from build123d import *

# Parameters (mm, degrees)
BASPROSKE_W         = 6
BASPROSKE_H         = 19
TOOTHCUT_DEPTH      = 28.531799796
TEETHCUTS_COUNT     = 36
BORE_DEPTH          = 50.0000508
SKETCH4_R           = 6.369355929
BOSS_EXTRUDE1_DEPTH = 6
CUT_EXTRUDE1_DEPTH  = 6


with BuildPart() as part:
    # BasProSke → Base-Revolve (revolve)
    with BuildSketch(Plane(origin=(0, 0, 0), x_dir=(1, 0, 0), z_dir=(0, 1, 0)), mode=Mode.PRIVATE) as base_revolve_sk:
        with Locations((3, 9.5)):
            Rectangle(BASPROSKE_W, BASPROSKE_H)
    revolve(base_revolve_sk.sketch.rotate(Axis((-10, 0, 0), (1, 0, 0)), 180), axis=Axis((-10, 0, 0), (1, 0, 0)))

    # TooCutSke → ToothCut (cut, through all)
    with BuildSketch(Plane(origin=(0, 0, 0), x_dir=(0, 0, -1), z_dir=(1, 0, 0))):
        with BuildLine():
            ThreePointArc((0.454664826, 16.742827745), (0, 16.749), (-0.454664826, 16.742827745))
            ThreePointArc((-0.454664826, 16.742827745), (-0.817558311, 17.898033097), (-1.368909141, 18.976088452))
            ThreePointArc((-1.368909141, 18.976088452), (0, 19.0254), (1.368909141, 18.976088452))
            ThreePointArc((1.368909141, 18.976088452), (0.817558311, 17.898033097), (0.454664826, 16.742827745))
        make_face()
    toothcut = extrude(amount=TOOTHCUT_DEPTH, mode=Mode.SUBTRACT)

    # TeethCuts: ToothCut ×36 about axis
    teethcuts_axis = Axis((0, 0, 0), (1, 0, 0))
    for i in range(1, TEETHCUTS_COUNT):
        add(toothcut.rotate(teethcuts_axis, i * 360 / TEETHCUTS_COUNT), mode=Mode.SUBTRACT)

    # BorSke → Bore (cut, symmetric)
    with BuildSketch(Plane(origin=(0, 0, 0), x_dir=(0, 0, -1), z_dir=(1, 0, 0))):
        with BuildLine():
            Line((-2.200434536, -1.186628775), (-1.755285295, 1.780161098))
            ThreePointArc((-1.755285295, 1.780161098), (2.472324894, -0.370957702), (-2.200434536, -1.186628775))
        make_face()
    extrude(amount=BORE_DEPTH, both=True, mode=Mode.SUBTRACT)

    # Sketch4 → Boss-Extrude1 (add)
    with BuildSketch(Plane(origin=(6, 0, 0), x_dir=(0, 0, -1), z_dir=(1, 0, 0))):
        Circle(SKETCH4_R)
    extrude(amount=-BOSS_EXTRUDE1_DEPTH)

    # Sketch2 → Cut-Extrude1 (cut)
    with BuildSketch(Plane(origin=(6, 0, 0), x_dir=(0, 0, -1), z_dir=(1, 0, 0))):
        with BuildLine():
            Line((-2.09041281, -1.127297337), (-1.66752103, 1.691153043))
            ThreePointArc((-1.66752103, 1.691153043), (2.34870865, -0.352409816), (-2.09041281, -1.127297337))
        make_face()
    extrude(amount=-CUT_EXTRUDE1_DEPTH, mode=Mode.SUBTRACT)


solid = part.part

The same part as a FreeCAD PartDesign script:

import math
import FreeCAD as App
import Part
import Sketcher
from FreeCAD import Vector

doc = App.newDocument("Part")
body = doc.addObject("PartDesign::Body", "Body")

sketch1 = body.newObject("Sketcher::SketchObject", "Sketch")
sketch1.AttachmentSupport = (doc.getObject("XZ_Plane"), [""])
sketch1.MapMode = "FlatFace"
sketch1.addGeometry([
    Part.LineSegment(Vector(0, -19, 0), Vector(0, 0, 0)),
    Part.LineSegment(Vector(0, 0, 0), Vector(6, 0, 0)),
    Part.LineSegment(Vector(6, 0, 0), Vector(6, -19, 0)),
    Part.LineSegment(Vector(6, -19, 0), Vector(0, -19, 0)),
], False)
sketch1.addConstraint([
    Sketcher.Constraint("Coincident", 0, 2, 1, 1),
    Sketcher.Constraint("Coincident", 1, 2, 2, 1),
    Sketcher.Constraint("Coincident", 2, 2, 3, 1),
    Sketcher.Constraint("Coincident", 3, 2, 0, 1),
    Sketcher.Constraint("Vertical", 0),
    Sketcher.Constraint("Horizontal", 1),
    Sketcher.Constraint("Vertical", 2),
    Sketcher.Constraint("Horizontal", 3),
    Sketcher.Constraint("Coincident", 0, 2, -1, 1),
    Sketcher.Constraint("DistanceX", 1, 1, 1, 2, 6.0),
    Sketcher.Constraint("DistanceY", 0, 1, 0, 2, 19.0),
])
revolution = body.newObject("PartDesign::Revolution", "Revolution")
revolution.Profile = sketch1
revolution.ReferenceAxis = (sketch1, ["H_Axis"])
revolution.Angle = 360

sketch2 = body.newObject("Sketcher::SketchObject", "Sketch001")
sketch2.AttachmentSupport = (doc.getObject("YZ_Plane"), [""])
sketch2.MapMode = "FlatFace"
sketch2.addGeometry([
    Part.ArcOfCircle(Part.Circle(Vector(0, 0, 0), Vector(0, 0, 1), 16.7), math.radians(-1.56), math.radians(1.56)),
    Part.ArcOfCircle(Part.Circle(Vector(15.2, -7.5, 0), Vector(0, 0, 1), 7.2), math.radians(58.09), math.radians(77.38)),
    Part.ArcOfCircle(Part.Circle(Vector(0, 0, 0), Vector(0, 0, 1), 19), math.radians(-4.13), math.radians(4.13)),
    Part.ArcOfCircle(Part.Circle(Vector(15.2, 7.5, 0), Vector(0, 0, 1), 7.2), math.radians(-77.38), math.radians(-58.09)),
], False)
sketch2.addConstraint([
    Sketcher.Constraint("Coincident", 0, 1, 1, 2),
    Sketcher.Constraint("Coincident", 1, 1, 2, 1),
    Sketcher.Constraint("Coincident", 2, 2, 3, 2),
    Sketcher.Constraint("Coincident", 3, 1, 0, 2),
    Sketcher.Constraint("Coincident", 0, 3, -1, 1),
    Sketcher.Constraint("Coincident", 2, 3, -1, 1),
    Sketcher.Constraint("Equal", 1, 3),
    Sketcher.Constraint("Symmetric", 1, 3, 3, 3, -1),
    Sketcher.Constraint("Radius", 1, 7.2),
    Sketcher.Constraint("Radius", 0, 16.749),
    Sketcher.Constraint("Radius", 2, 19.0254),
    Sketcher.Constraint("DistanceY", 1, 3, -1, 1, 7.480829),
    Sketcher.Constraint("DistanceX", -1, 1, 1, 1, 18.976088),
])
pocket1 = body.newObject("PartDesign::Pocket", "Pocket")
pocket1.Profile = sketch2
pocket1.Type = "ThroughAll"
pocket1.Reversed = True
doc.recompute()

polarpattern = body.newObject("PartDesign::PolarPattern", "PolarPattern")
polarpattern.Originals = [pocket1]
polarpattern.Axis = (doc.getObject("X_Axis"), [""])
polarpattern.Angle = 360
polarpattern.Occurrences = 36
body.Tip = polarpattern

sketch3 = body.newObject("Sketcher::SketchObject", "Sketch002")
sketch3.AttachmentSupport = (doc.getObject("YZ_Plane"), [""])
sketch3.MapMode = "FlatFace"
sketch3.addGeometry([
    Part.LineSegment(Vector(1.8, 1.8, 0), Vector(-1.2, 2.2, 0)),
    Part.ArcOfCircle(Part.Circle(Vector(0, 0, 0), Vector(0, 0, 1), 2.5), math.radians(118), math.radians(405)),
], False)
sketch3.addConstraint([
    Sketcher.Constraint("Coincident", 0, 1, 1, 2),
    Sketcher.Constraint("Coincident", 1, 1, 0, 2),
    Sketcher.Constraint("Coincident", 1, 3, -1, 1),
    Sketcher.Constraint("Radius", 1, 2.5),
    Sketcher.Constraint("Distance", 0, 3.0),
    Sketcher.Constraint("DistanceX", -1, 1, 0, 1, 1.780161),
])
pocket2 = body.newObject("PartDesign::Pocket", "Pocket001")
pocket2.Profile = sketch3
pocket2.Length = 100.000102
pocket2.Midplane = True

sketch4 = body.newObject("Sketcher::SketchObject", "Sketch003")
sketch4.AttachmentSupport = (doc.getObject("YZ_Plane"), [""])
sketch4.MapMode = "FlatFace"
sketch4.AttachmentOffset = App.Placement(Vector(0, 0, 6), App.Rotation())
sketch4.addGeometry(Part.Circle(Vector(0, 0, 0), Vector(0, 0, 1), 6), False)
sketch4.addConstraint([
    Sketcher.Constraint("Coincident", 0, 3, -1, 1),
    Sketcher.Constraint("Diameter", 0, 12.738712),
])
pad1 = body.newObject("PartDesign::Pad", "Pad")
pad1.Profile = sketch4
pad1.Length = 6
pad1.Reversed = True

sketch5 = body.newObject("Sketcher::SketchObject", "Sketch004")
sketch5.AttachmentSupport = (doc.getObject("YZ_Plane"), [""])
sketch5.MapMode = "FlatFace"
sketch5.AttachmentOffset = App.Placement(Vector(0, 0, 6), App.Rotation())
sketch5.addGeometry([
    Part.LineSegment(Vector(1.7, 1.7, 0), Vector(-1.1, 2.1, 0)),
    Part.ArcOfCircle(Part.Circle(Vector(0, 0, 0), Vector(0, 0, 1), 2.4), math.radians(118), math.radians(405)),
], False)
sketch5.addConstraint([
    Sketcher.Constraint("Coincident", 0, 1, 1, 2),
    Sketcher.Constraint("Coincident", 1, 1, 0, 2),
    Sketcher.Constraint("Coincident", 1, 3, -1, 1),
    Sketcher.Constraint("Radius", 1, 2.375),
    Sketcher.Constraint("Distance", 0, 2.85),
    Sketcher.Constraint("DistanceY", -1, 1, 0, 1, 1.667521),
])
pocket3 = body.newObject("PartDesign::Pocket", "Pocket002")
pocket3.Profile = sketch5
pocket3.Length = 6

doc.recompute()
